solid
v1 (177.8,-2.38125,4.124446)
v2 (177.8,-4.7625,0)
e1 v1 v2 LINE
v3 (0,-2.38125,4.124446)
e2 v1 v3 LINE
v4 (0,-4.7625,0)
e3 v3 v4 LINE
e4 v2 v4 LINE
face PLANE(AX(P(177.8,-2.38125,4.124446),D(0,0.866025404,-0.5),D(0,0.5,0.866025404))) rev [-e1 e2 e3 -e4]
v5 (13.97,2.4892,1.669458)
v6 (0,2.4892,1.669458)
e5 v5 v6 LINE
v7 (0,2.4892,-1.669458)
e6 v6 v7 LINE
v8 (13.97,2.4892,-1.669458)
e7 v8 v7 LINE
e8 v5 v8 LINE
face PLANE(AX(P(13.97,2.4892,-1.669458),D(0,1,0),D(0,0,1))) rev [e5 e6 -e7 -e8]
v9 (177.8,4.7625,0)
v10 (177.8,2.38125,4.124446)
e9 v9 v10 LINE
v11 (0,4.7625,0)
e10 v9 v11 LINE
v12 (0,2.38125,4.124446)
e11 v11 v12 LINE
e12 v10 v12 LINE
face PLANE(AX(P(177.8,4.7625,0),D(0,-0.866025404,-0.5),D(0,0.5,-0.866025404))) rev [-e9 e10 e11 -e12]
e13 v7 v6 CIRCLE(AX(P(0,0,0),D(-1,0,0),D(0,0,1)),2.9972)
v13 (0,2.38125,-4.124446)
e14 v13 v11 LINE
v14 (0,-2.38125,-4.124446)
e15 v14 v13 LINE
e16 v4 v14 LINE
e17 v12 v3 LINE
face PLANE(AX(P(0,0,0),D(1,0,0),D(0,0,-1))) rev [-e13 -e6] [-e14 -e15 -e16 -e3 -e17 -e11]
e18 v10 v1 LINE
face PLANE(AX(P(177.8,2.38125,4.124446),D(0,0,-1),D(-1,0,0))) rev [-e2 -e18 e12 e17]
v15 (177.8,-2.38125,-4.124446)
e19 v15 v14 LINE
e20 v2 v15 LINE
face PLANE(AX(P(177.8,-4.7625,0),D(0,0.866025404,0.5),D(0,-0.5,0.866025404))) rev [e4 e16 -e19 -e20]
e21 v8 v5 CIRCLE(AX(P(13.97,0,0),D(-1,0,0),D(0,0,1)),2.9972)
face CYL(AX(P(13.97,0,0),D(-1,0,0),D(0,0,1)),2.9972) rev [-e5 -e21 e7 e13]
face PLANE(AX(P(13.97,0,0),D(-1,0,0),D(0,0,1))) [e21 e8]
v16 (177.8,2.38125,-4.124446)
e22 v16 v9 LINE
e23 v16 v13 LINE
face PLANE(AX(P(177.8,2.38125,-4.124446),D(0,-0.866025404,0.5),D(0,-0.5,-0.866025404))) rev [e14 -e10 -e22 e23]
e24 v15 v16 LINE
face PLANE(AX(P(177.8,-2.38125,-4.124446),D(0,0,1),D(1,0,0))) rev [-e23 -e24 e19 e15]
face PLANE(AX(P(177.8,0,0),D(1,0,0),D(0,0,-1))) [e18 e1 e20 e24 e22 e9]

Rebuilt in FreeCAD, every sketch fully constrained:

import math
import FreeCAD as App
import Part
import Sketcher
from FreeCAD import Vector
Q = App.Units.Quantity


def add_polygon(sketch, points):
    """Adds a closed chain of lines whose ends are joined by coincident constraints."""
    first, n = sketch.GeometryCount, len(points)
    for a, b in zip(points, points[1:] + points[:1]):
        sketch.addGeometry(Part.LineSegment(App.Vector(*a, 0), App.Vector(*b, 0)), False)
    for i in range(n):
        sketch.addConstraint(Sketcher.Constraint("Coincident", first + i, 2, first + (i + 1) % n, 1))

doc = App.newDocument("Part")
body = doc.addObject("PartDesign::Body", "Body")

sketch1 = doc.addObject("Sketcher::SketchObject", "Sketch")
body.addObject(sketch1)
sketch1.AttachmentSupport = (doc.YZ_Plane, [""])
sketch1.MapMode = "FlatFace"
add_polygon(sketch1, [(-2.4, -4.1), (2.4, -4.1), (4.8, 0), (2.4, 4.1), (-2.4, 4.1), (-4.8, 0)])
sketch1.addConstraint([
    Sketcher.Constraint("Horizontal", 0),
    Sketcher.Constraint("Horizontal", 3),
    Sketcher.Constraint("Symmetric", 0, 2, 3, 2, -1, 1),
    Sketcher.Constraint("Symmetric", 1, 2, 4, 2, -1, 1),
    Sketcher.Constraint("PointOnObject", 1, 2, -1),
    Sketcher.Constraint("Parallel", 2, 5),
    Sketcher.Constraint("Vertical", 0, 2, 2, 2),
    Sketcher.Constraint("Angle", 1, Q("60 deg")),
    Sketcher.Constraint("DistanceX", 0, 1, 0, 2, Q("0.1875 in")),
    Sketcher.Constraint("Distance", 1, Q("0.1875 in")),
])
pad1 = doc.addObject("PartDesign::Pad", "Pad")
body.addObject(pad1)
pad1.Profile = sketch1
pad1.Length = Q("7 in")

sketch2 = doc.addObject("Sketcher::SketchObject", "Sketch001")
body.addObject(sketch2)
sketch2.AttachmentSupport = (doc.YZ_Plane, [""])
sketch2.MapMode = "FlatFace"
sketch2.addGeometry([
    Part.LineSegment(Vector(2.5, 1.7, 0), Vector(2.5, -1.7, 0)),
    Part.ArcOfCircle(Part.Circle(Vector(0, 0, 0), Vector(0, 0, 1), 3), math.radians(34), math.radians(326)),
], False)
sketch2.addConstraint([
    Sketcher.Constraint("Coincident", 0, 1, 1, 1),
    Sketcher.Constraint("Coincident", 1, 2, 0, 2),
    Sketcher.Constraint("Vertical", 0),
    Sketcher.Constraint("Coincident", 1, 3, -1, 1),
    Sketcher.Constraint("Radius", 1, Q("0.118 in")),
    Sketcher.Constraint("DistanceX", -1, 1, 0, 1, Q("0.098 in")),
])
pocket1 = doc.addObject("PartDesign::Pocket", "Pocket")
body.addObject(pocket1)
pocket1.Profile = sketch2
pocket1.Length = Q("0.55 in")
pocket1.Reversed = True

doc.recompute()
